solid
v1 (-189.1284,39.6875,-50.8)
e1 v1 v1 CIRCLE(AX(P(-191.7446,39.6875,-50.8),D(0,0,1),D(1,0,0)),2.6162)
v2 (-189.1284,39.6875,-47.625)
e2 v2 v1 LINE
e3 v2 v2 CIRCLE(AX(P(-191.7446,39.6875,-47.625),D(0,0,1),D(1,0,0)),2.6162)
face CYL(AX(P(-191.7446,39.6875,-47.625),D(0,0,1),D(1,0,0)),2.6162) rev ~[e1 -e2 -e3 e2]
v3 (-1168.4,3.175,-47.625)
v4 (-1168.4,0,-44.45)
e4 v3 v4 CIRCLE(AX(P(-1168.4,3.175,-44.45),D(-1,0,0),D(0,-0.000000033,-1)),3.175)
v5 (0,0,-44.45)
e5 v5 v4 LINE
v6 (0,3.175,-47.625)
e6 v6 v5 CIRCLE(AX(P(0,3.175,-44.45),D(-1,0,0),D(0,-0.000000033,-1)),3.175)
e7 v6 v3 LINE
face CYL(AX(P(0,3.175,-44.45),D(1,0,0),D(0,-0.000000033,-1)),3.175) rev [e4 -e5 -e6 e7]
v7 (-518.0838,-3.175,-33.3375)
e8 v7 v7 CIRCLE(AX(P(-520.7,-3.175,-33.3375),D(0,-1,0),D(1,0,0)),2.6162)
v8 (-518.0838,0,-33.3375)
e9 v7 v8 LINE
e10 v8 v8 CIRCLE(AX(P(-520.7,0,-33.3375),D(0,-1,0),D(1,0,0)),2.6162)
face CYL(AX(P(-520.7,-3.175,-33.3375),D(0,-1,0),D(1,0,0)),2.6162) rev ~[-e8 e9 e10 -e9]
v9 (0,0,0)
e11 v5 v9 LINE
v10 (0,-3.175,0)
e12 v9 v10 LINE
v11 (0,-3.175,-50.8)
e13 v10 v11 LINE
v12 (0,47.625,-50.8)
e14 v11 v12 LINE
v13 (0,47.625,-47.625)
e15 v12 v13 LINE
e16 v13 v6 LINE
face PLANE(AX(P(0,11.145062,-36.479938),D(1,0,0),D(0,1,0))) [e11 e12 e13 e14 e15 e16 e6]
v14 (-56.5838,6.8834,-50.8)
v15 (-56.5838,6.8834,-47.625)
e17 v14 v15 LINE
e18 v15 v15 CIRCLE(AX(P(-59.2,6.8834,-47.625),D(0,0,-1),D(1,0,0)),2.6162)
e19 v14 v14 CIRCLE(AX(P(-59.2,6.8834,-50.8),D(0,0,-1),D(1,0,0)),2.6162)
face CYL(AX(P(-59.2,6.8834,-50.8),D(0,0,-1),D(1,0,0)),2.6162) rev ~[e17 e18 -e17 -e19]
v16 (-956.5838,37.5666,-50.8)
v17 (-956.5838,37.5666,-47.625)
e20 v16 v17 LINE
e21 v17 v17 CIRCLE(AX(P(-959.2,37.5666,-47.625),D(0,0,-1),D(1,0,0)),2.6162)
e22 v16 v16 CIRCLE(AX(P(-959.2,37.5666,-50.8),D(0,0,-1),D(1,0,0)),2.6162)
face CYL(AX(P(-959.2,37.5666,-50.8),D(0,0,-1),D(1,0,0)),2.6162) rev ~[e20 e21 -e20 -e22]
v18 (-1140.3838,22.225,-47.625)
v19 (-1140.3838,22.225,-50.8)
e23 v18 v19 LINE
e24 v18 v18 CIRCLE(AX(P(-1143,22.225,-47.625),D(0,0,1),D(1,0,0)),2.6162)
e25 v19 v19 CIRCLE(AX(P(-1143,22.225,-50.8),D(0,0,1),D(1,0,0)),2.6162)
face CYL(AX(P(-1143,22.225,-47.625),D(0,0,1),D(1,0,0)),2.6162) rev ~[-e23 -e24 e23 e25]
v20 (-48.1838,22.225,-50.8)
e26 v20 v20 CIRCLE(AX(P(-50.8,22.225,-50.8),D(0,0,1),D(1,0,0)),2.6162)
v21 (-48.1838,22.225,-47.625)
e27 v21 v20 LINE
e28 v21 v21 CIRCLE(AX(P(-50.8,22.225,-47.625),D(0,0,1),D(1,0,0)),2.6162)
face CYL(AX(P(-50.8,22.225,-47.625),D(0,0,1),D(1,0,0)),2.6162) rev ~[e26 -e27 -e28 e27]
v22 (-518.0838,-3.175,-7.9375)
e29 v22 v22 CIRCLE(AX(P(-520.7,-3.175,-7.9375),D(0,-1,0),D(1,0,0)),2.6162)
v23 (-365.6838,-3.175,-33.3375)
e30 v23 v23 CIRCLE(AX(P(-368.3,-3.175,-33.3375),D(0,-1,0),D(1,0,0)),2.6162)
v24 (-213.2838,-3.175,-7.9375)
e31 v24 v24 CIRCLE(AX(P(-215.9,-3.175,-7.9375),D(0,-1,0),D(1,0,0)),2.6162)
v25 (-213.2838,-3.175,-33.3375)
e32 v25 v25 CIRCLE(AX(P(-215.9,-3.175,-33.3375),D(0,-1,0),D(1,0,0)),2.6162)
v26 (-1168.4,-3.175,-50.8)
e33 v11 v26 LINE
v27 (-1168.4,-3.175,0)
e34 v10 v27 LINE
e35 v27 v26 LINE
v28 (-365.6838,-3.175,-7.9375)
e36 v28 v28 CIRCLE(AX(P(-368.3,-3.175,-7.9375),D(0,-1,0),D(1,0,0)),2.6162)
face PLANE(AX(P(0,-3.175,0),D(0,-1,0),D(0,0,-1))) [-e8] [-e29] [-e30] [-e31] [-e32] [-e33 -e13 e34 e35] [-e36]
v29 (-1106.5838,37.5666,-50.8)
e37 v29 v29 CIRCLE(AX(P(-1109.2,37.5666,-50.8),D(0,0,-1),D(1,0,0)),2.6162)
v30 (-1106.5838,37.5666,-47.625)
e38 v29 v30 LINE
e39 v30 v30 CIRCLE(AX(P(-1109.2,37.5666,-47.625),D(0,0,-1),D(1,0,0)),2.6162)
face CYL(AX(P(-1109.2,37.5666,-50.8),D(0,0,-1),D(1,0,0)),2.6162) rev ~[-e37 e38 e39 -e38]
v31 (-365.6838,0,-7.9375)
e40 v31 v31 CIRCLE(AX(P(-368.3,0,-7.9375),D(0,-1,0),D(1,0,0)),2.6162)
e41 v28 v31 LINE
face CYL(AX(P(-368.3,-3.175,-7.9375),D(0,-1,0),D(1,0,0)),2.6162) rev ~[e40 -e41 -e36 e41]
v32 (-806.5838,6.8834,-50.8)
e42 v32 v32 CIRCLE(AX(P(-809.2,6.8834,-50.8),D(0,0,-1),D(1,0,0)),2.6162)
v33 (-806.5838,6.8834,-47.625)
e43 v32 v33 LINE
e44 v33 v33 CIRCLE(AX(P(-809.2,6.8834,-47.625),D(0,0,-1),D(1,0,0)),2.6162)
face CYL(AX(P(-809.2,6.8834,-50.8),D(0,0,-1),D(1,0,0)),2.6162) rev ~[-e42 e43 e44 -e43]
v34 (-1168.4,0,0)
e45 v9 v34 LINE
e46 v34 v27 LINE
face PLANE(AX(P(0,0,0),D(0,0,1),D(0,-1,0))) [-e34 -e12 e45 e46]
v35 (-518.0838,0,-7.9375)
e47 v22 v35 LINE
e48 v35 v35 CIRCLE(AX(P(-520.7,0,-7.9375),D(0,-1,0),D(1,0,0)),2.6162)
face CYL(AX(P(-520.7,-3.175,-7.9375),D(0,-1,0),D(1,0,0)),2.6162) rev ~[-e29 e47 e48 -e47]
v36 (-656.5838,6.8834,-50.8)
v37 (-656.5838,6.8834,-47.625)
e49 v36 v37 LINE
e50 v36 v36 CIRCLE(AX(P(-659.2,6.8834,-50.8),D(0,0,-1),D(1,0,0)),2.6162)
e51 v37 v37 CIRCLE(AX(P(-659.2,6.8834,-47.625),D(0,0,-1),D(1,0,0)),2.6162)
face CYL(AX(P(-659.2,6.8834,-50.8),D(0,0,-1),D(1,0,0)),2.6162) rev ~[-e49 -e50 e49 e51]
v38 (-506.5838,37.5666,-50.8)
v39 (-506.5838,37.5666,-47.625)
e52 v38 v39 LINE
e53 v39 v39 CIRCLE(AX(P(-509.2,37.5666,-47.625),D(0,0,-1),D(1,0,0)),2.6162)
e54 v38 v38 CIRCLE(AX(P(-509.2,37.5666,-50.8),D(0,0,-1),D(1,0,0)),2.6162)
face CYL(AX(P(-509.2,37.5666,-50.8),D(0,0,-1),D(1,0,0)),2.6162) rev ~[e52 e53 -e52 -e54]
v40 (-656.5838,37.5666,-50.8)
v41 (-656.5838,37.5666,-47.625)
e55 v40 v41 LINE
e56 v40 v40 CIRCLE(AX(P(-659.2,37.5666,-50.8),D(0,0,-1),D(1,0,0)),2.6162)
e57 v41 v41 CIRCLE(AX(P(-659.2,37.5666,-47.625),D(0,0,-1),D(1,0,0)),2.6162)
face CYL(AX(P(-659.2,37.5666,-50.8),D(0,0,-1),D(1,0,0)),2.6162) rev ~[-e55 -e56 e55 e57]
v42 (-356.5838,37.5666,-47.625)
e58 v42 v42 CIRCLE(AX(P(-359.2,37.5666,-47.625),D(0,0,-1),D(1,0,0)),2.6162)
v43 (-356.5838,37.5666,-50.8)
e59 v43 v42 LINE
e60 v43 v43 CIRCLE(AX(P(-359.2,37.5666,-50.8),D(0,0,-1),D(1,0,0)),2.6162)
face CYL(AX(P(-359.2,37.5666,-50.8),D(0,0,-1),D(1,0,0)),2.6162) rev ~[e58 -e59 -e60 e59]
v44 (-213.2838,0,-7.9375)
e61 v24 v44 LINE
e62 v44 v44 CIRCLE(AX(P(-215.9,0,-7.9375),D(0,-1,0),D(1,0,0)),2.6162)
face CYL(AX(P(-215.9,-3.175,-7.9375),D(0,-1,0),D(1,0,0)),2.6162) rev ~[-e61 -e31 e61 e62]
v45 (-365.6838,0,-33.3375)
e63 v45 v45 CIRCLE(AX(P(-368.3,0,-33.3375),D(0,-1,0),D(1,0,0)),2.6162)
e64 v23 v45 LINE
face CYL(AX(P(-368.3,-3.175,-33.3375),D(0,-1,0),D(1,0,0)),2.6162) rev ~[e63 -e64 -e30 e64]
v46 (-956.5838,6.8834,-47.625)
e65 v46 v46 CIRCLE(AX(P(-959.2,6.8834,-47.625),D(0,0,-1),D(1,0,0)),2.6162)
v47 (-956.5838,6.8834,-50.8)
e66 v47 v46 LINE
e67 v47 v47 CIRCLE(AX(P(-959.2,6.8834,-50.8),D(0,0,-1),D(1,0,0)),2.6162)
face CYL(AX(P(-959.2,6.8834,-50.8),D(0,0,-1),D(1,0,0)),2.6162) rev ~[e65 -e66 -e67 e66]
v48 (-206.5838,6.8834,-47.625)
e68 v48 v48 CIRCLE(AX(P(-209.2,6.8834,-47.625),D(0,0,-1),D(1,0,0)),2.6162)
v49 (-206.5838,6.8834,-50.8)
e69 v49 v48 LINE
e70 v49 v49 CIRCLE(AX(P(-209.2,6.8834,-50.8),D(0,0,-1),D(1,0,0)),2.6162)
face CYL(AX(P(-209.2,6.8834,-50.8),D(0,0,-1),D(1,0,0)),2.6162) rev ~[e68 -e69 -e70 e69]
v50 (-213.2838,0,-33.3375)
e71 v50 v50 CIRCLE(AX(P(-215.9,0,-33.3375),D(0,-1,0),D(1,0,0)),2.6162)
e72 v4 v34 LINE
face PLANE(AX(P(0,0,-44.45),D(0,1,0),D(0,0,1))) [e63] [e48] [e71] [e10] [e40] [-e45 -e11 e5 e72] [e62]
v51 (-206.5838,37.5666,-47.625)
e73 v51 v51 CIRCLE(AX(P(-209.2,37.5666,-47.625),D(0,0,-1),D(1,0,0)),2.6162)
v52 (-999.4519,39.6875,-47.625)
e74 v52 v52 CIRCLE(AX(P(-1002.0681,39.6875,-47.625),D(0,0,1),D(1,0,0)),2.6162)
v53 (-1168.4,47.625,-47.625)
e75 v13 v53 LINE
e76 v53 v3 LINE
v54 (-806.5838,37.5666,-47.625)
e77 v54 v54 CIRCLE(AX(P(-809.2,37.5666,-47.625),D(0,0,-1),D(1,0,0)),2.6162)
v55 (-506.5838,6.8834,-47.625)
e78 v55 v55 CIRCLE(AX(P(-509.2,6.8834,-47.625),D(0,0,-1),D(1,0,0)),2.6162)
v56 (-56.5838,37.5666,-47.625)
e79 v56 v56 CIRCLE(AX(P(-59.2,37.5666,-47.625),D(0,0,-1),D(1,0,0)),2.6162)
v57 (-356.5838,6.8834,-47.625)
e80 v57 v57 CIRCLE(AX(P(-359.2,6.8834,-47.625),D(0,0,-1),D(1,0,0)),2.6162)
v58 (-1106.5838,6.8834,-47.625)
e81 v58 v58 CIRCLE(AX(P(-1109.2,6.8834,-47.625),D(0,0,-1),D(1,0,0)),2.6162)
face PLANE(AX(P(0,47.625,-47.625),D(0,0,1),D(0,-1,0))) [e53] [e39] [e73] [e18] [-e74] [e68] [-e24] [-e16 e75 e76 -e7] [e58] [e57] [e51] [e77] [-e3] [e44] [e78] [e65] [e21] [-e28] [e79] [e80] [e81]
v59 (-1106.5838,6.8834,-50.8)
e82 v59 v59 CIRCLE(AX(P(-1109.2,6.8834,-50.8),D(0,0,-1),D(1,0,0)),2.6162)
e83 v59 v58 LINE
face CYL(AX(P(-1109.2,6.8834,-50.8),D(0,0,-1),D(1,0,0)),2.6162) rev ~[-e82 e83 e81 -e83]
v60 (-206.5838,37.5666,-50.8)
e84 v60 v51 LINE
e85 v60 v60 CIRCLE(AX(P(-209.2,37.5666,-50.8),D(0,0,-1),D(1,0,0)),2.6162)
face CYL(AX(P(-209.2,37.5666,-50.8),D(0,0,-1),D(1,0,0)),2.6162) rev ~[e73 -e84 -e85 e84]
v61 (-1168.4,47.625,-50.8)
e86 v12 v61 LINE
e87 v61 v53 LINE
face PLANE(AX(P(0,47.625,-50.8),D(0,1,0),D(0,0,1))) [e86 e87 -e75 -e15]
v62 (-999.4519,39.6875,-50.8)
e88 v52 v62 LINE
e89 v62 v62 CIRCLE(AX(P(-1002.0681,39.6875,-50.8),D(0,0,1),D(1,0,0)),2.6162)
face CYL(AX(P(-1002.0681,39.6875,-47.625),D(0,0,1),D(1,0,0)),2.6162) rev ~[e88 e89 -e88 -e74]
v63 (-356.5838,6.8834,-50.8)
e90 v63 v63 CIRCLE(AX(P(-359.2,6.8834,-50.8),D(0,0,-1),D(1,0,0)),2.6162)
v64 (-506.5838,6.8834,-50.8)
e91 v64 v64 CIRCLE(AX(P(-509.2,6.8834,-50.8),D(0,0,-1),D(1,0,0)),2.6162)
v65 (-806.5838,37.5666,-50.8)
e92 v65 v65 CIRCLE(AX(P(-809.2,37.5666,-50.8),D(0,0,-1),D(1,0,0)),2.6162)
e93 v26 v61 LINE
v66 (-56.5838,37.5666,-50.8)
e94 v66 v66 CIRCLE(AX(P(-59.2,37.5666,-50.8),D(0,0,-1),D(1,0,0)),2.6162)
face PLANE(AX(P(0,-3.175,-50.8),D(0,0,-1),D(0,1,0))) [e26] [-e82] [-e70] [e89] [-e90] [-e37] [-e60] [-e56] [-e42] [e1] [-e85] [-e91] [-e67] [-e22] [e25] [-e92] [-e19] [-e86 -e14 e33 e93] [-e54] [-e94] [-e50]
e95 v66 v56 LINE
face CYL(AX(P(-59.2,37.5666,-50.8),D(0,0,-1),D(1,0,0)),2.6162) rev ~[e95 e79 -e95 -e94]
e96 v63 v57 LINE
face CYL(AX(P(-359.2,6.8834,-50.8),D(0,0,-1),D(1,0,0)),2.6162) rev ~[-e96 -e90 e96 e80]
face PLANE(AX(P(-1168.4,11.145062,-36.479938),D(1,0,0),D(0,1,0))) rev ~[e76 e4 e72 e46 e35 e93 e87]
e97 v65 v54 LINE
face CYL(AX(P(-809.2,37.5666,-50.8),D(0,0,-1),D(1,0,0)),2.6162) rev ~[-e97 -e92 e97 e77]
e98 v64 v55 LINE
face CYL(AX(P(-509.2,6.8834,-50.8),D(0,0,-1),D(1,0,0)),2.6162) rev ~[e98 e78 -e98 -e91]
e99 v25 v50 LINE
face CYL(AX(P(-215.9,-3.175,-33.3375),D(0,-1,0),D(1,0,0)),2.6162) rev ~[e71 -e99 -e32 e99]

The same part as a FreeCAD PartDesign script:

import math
import FreeCAD as App
import Part
import Sketcher
from FreeCAD import Vector
Q = App.Units.Quantity

doc = App.newDocument("Part")
body = doc.addObject("PartDesign::Body", "Body")

# Sketch on YZ plane
sketch1 = body.newObject("Sketcher::SketchObject", "Sketch")
sketch1.AttachmentSupport = (doc.getObject("YZ_Plane"), [""])
sketch1.MapMode = "FlatFace"
sketch1.addGeometry([
    Part.LineSegment(Vector(0, -44.5, 0), Vector(0, 0, 0)),  # 0
    Part.LineSegment(Vector(0, 0, 0), Vector(-3.2, 0, 0)),  # 1
    Part.LineSegment(Vector(-3.2, 0, 0), Vector(-3.2, -50.8, 0)),  # 2
    Part.LineSegment(Vector(-3.2, -50.8, 0), Vector(47.6, -50.8, 0)),  # 3
    Part.LineSegment(Vector(47.6, -50.8, 0), Vector(47.6, -47.6, 0)),  # 4
    Part.LineSegment(Vector(47.6, -47.6, 0), Vector(3.2, -47.6, 0)),  # 5
    Part.ArcOfCircle(Part.Circle(Vector(3.2, -44.4, 0), Vector(0, 0, 1), 3.2), math.radians(-180), math.radians(-90)),  # 6
], False)
sketch1.addConstraint([
    Sketcher.Constraint("Coincident", 0, 2, 1, 1),
    Sketcher.Constraint("Coincident", 1, 2, 2, 1),
    Sketcher.Constraint("Coincident", 2, 2, 3, 1),
    Sketcher.Constraint("Coincident", 3, 2, 4, 1),
    Sketcher.Constraint("Coincident", 4, 2, 5, 1),
    Sketcher.Constraint("Tangent", 5, 2, 6, 2),
    Sketcher.Constraint("Tangent", 6, 1, 0, 1),
    Sketcher.Constraint("Vertical", 0),
    Sketcher.Constraint("Horizontal", 1),
    Sketcher.Constraint("Vertical", 2),
    Sketcher.Constraint("Horizontal", 3),
    Sketcher.Constraint("Vertical", 4),
    Sketcher.Constraint("Horizontal", 5),
    Sketcher.Constraint("Coincident", 0, 2, -1, 1),
    Sketcher.Constraint("Equal", 5, 0),
    Sketcher.Constraint("Equal", 3, 2),
    Sketcher.Constraint("DistanceX", 3, 1, 3, 2, Q("2 in")),
    Sketcher.Constraint("Radius", 6, Q("0.125 in")),
    Sketcher.Constraint("DistanceX", 5, 2, 5, 1, Q("1.75 in")),
])
pad1 = body.newObject("PartDesign::Pad", "Pad")
pad1.Profile = sketch1
pad1.Length = Q("46 in")
pad1.Reversed = True

# Sketch on XY plane
sketch2 = body.newObject("Sketcher::SketchObject", "Sketch001")
sketch2.AttachmentSupport = (doc.getObject("XY_Plane"), [""])
sketch2.MapMode = "FlatFace"
sketch2.AttachmentOffset = App.Placement(Vector(0, 0, -2 * 25.4), App.Rotation())
sketch2.addGeometry([
    Part.Circle(Vector(-1109.2, 6.9, 0), Vector(0, 0, 1), 2.6),  # 0
    Part.Circle(Vector(-1109.2, 37.6, 0), Vector(0, 0, 1), 2.6),  # 1
    Part.Circle(Vector(-959.2, 6.9, 0), Vector(0, 0, 1), 2.6),  # 2
    Part.Circle(Vector(-959.2, 37.6, 0), Vector(0, 0, 1), 2.6),  # 3
    Part.Circle(Vector(-809.2, 6.9, 0), Vector(0, 0, 1), 2.6),  # 4
    Part.Circle(Vector(-809.2, 37.6, 0), Vector(0, 0, 1), 2.6),  # 5
    Part.Circle(Vector(-659.2, 6.9, 0), Vector(0, 0, 1), 2.6),  # 6
    Part.Circle(Vector(-659.2, 37.6, 0), Vector(0, 0, 1), 2.6),  # 7
    Part.Circle(Vector(-509.2, 6.9, 0), Vector(0, 0, 1), 2.6),  # 8
    Part.Circle(Vector(-509.2, 37.6, 0), Vector(0, 0, 1), 2.6),  # 9
    Part.Circle(Vector(-359.2, 6.9, 0), Vector(0, 0, 1), 2.6),  # 10
    Part.Circle(Vector(-359.2, 37.6, 0), Vector(0, 0, 1), 2.6),  # 11
    Part.Circle(Vector(-209.2, 6.9, 0), Vector(0, 0, 1), 2.6),  # 12
    Part.Circle(Vector(-209.2, 37.6, 0), Vector(0, 0, 1), 2.6),  # 13
    Part.Circle(Vector(-59.2, 6.9, 0), Vector(0, 0, 1), 2.6),  # 14
    Part.Circle(Vector(-59.2, 37.6, 0), Vector(0, 0, 1), 2.6),  # 15
], False)
sketch2.addConstraint([
    Sketcher.Constraint("Equal", 0, 1),
    Sketcher.Constraint("Equal", 1, 2),
    Sketcher.Constraint("Equal", 2, 3),
    Sketcher.Constraint("Equal", 3, 4),
    Sketcher.Constraint("Equal", 4, 5),
    Sketcher.Constraint("Equal", 5, 6),
    Sketcher.Constraint("Equal", 6, 7),
    Sketcher.Constraint("Equal", 7, 8),
    Sketcher.Constraint("Equal", 8, 9),
    Sketcher.Constraint("Equal", 9, 10),
    Sketcher.Constraint("Equal", 10, 11),
    Sketcher.Constraint("Equal", 11, 12),
    Sketcher.Constraint("Equal", 12, 13),
    Sketcher.Constraint("Equal", 13, 14),
    Sketcher.Constraint("Equal", 14, 15),
    Sketcher.Constraint("Horizontal", 0, 3, 2, 3),
    Sketcher.Constraint("Horizontal", 1, 3, 3, 3),
    Sketcher.Constraint("Horizontal", 2, 3, 4, 3),
    Sketcher.Constraint("Horizontal", 3, 3, 5, 3),
    Sketcher.Constraint("Horizontal", 4, 3, 6, 3),
    Sketcher.Constraint("Horizontal", 5, 3, 7, 3),
    Sketcher.Constraint("Horizontal", 6, 3, 8, 3),
    Sketcher.Constraint("Horizontal", 7, 3, 9, 3),
    Sketcher.Constraint("Horizontal", 8, 3, 10, 3),
    Sketcher.Constraint("Horizontal", 9, 3, 11, 3),
    Sketcher.Constraint("Horizontal", 10, 3, 12, 3),
    Sketcher.Constraint("Horizontal", 11, 3, 13, 3),
    Sketcher.Constraint("Horizontal", 12, 3, 14, 3),
    Sketcher.Constraint("Horizontal", 13, 3, 15, 3),
    Sketcher.Constraint("Vertical", 0, 3, 1, 3),
    Sketcher.Constraint("Vertical", 2, 3, 3, 3),
    Sketcher.Constraint("Vertical", 4, 3, 5, 3),
    Sketcher.Constraint("Vertical", 6, 3, 7, 3),
    Sketcher.Constraint("Vertical", 8, 3, 9, 3),
    Sketcher.Constraint("Vertical", 10, 3, 11, 3),
    Sketcher.Constraint("Vertical", 12, 3, 13, 3),
    Sketcher.Constraint("Vertical", 14, 3, 15, 3),
    Sketcher.Constraint("Diameter", 0, Q("0.206 in")),
    Sketcher.Constraint("DistanceY", -1, 1, 0, 3, Q("0.271 in")),
    Sketcher.Constraint("DistanceY", -1, 1, 1, 3, Q("1.479 in")),
    Sketcher.Constraint("DistanceX", 0, 3, -1, 1, Q("1109.2 mm")),
    Sketcher.Constraint("DistanceX", 2, 3, -1, 1, Q("959.2 mm")),
    Sketcher.Constraint("DistanceX", 4, 3, -1, 1, Q("809.2 mm")),
    Sketcher.Constraint("DistanceX", 6, 3, -1, 1, Q("659.2 mm")),
    Sketcher.Constraint("DistanceX", 8, 3, -1, 1, Q("509.2 mm")),
    Sketcher.Constraint("DistanceX", 10, 3, -1, 1, Q("359.2 mm")),
    Sketcher.Constraint("DistanceX", 12, 3, -1, 1, Q("209.2 mm")),
    Sketcher.Constraint("DistanceX", 14, 3, -1, 1, Q("59.2 mm")),
])
pocket1 = body.newObject("PartDesign::Pocket", "Pocket")
pocket1.Profile = sketch2
pocket1.Type = "ThroughAll"
pocket1.Reversed = True

# Sketch on XY plane
sketch3 = body.newObject("Sketcher::SketchObject", "Sketch002")
sketch3.AttachmentSupport = (doc.getObject("XY_Plane"), [""])
sketch3.MapMode = "FlatFace"
sketch3.AttachmentOffset = App.Placement(Vector(0, 0, -1.875 * 25.4), App.Rotation())
sketch3.addGeometry([
    Part.Circle(Vector(-50.8, 22.2, 0), Vector(0, 0, 1), 2.6),
    Part.Circle(Vector(-1143, 22.2, 0), Vector(0, 0, 1), 2.6),
    Part.Circle(Vector(-1002.1, 39.7, 0), Vector(0, 0, 1), 2.6),
    Part.Circle(Vector(-191.7, 39.7, 0), Vector(0, 0, 1), 2.6),
], False)
sketch3.addConstraint([
    Sketcher.Constraint("Equal", 0, 1),
    Sketcher.Constraint("Equal", 1, 2),
    Sketcher.Constraint("Equal", 2, 3),
    Sketcher.Constraint("Horizontal", 0, 3, 1, 3),
    Sketcher.Constraint("Horizontal", 2, 3, 3, 3),
    Sketcher.Constraint("Diameter", 0, Q("0.206 in")),
    Sketcher.Constraint("DistanceX", 0, 3, -1, 1, Q("2 in")),
    Sketcher.Constraint("DistanceX", 1, 3, -1, 1, Q("45 in")),
    Sketcher.Constraint("DistanceY", -1, 1, 0, 3, Q("0.875 in")),
    Sketcher.Constraint("DistanceY", -1, 1, 2, 3, Q("1.5625 in")),
    Sketcher.Constraint("DistanceX", 3, 3, -1, 1, Q("7.549 in")),
    Sketcher.Constraint("DistanceX", 2, 3, -1, 1, Q("39.4515 in")),
])
pocket2 = body.newObject("PartDesign::Pocket", "Pocket001")
pocket2.Profile = sketch3
pocket2.Type = "ThroughAll"

# Sketch on XZ plane
sketch4 = body.newObject("Sketcher::SketchObject", "Sketch003")
sketch4.AttachmentSupport = (doc.getObject("XZ_Plane"), [""])
sketch4.MapMode = "FlatFace"
sketch4.AttachmentOffset = App.Placement(Vector(0, 0, 0.125 * 25.4), App.Rotation())
sketch4.addGeometry([
    Part.Circle(Vector(-368.3, -7.9, 0), Vector(0, 0, 1), 2.6),  # 0
    Part.Circle(Vector(-215.9, -7.9, 0), Vector(0, 0, 1), 2.6),  # 1
    Part.Circle(Vector(-520.7, -7.9, 0), Vector(0, 0, 1), 2.6),  # 2
    Part.Circle(Vector(-520.7, -33.3, 0), Vector(0, 0, 1), 2.6),  # 3
    Part.Circle(Vector(-368.3, -33.3, 0), Vector(0, 0, 1), 2.6),  # 4
    Part.Circle(Vector(-215.9, -33.3, 0), Vector(0, 0, 1), 2.6),  # 5
], False)
sketch4.addConstraint([
    Sketcher.Constraint("Equal", 0, 1),
    Sketcher.Constraint("Equal", 1, 2),
    Sketcher.Constraint("Equal", 2, 3),
    Sketcher.Constraint("Equal", 3, 4),
    Sketcher.Constraint("Equal", 4, 5),
    Sketcher.Constraint("Horizontal", 0, 3, 1, 3),
    Sketcher.Constraint("Horizontal", 1, 3, 2, 3),
    Sketcher.Constraint("Horizontal", 3, 3, 4, 3),
    Sketcher.Constraint("Horizontal", 4, 3, 5, 3),
    Sketcher.Constraint("Vertical", 2, 3, 3, 3),
    Sketcher.Constraint("Vertical", 0, 3, 4, 3),
    Sketcher.Constraint("Vertical", 1, 3, 5, 3),
    Sketcher.Constraint("Diameter", 0, Q("0.206 in")),
    Sketcher.Constraint("DistanceX", 0, 3, 1, 3, Q("6 in")),
    Sketcher.Constraint("DistanceX", 2, 3, 0, 3, Q("6 in")),
    Sketcher.Constraint("DistanceY", 3, 3, 2, 3, Q("1 in")),
    Sketcher.Constraint("DistanceX", 0, 3, -1, 1, Q("14.5 in")),
    Sketcher.Constraint("DistanceY", 0, 3, -1, 1, Q("0.3125 in")),
])
pocket3 = body.newObject("PartDesign::Pocket", "Pocket002")
pocket3.Profile = sketch4
pocket3.Type = "ThroughAll"

doc.recompute()
